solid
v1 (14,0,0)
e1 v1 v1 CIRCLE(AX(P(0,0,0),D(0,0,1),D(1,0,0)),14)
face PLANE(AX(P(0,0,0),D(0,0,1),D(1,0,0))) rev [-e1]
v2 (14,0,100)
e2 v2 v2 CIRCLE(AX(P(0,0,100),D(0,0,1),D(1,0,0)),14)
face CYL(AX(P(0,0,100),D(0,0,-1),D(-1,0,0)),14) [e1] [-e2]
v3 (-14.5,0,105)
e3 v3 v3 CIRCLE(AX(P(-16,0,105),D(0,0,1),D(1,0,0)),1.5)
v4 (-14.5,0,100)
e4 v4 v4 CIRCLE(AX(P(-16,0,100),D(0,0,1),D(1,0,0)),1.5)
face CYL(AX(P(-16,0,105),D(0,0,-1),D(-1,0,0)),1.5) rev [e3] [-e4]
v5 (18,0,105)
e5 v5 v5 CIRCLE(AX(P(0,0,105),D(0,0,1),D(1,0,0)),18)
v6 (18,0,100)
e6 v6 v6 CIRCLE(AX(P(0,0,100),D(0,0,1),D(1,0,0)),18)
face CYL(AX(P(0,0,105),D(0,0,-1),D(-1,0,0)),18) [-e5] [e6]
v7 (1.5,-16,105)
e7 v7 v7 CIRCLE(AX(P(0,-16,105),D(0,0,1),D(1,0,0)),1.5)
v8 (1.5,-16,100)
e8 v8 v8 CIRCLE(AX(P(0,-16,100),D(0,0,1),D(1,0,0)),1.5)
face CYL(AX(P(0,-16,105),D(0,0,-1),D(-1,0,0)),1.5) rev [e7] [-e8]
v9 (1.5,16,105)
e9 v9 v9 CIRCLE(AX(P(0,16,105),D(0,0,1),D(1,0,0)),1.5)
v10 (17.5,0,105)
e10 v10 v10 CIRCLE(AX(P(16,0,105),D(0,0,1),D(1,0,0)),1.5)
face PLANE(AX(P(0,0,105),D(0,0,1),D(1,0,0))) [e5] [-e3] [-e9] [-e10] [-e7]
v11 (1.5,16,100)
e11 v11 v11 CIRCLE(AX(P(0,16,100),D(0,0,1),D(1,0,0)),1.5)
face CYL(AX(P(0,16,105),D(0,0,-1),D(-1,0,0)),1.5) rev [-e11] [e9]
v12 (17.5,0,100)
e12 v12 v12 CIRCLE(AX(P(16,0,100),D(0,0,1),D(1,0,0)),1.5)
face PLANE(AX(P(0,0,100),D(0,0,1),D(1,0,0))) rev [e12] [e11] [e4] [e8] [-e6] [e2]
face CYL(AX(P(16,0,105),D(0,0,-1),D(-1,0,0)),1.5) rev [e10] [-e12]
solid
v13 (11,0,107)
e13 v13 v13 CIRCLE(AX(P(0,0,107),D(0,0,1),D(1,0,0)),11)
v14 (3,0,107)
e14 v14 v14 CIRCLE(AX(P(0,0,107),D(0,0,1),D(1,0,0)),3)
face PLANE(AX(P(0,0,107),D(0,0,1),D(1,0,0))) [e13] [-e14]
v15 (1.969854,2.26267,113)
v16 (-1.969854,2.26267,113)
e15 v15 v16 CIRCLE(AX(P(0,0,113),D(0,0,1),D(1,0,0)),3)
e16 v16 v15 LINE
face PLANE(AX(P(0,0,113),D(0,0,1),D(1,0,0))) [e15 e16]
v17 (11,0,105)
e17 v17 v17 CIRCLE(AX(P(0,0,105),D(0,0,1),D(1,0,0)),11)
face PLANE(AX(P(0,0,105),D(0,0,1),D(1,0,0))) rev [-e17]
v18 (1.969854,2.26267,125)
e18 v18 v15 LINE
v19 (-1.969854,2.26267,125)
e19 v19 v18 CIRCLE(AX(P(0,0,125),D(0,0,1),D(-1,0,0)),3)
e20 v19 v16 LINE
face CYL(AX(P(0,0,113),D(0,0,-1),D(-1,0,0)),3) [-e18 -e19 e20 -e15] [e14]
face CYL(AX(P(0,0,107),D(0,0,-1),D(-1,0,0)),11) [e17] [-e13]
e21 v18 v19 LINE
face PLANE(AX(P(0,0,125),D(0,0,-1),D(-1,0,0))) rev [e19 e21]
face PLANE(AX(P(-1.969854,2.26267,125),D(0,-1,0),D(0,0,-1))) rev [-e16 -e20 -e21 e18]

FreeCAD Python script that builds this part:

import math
import FreeCAD as App
import Part
import Sketcher
from FreeCAD import Vector
Q = App.Units.Quantity

doc = App.newDocument("Part")
body = doc.addObject("PartDesign::Body", "Body")

sketch1 = body.newObject("Sketcher::SketchObject", "Sketch")
sketch1.AttachmentSupport = (doc.getObject("XY_Plane"), [""])
sketch1.MapMode = "FlatFace"
sketch1.addGeometry(Part.Circle(Vector(0, 0, 0), Vector(0, 0, 1), 14), False)
sketch1.addConstraint(Sketcher.Constraint("Coincident", 0, 3, -1, 1))
sketch1.addConstraint(Sketcher.Constraint("Diameter", 0, Q("28 mm")))
pad1 = body.newObject("PartDesign::Pad", "Pad")
pad1.Profile = sketch1
pad1.Length = 100

sketch2 = body.newObject("Sketcher::SketchObject", "Sketch001")
sketch2.AttachmentSupport = (doc.getObject("XY_Plane"), [""])
sketch2.MapMode = "FlatFace"
sketch2.AttachmentOffset = App.Placement(Vector(0, 0, 100), App.Rotation())
sketch2.addGeometry(Part.Circle(Vector(0, 0, 0), Vector(0, 0, 1), 18), False)
sketch2.addGeometry(Part.Circle(Vector(0, -16, 0), Vector(0, 0, 1), 1.5), False)
sketch2.addGeometry(Part.Circle(Vector(-16, 0, 0), Vector(0, 0, 1), 1.5), False)
sketch2.addGeometry(Part.Circle(Vector(16, 0, 0), Vector(0, 0, 1), 1.5), False)
sketch2.addGeometry(Part.Circle(Vector(0, 16, 0), Vector(0, 0, 1), 1.5), False)
sketch2.addConstraint(Sketcher.Constraint("Coincident", 0, 3, -1, 1))
sketch2.addConstraint(Sketcher.Constraint("Equal", 1, 2))
sketch2.addConstraint(Sketcher.Constraint("Equal", 2, 3))
sketch2.addConstraint(Sketcher.Constraint("Equal", 3, 4))
sketch2.addConstraint(Sketcher.Constraint("Symmetric", 2, 3, 3, 3, -1, 1))
sketch2.addConstraint(Sketcher.Constraint("Symmetric", 1, 3, 4, 3, -1, 1))
sketch2.addConstraint(Sketcher.Constraint("PointOnObject", 1, 3, -2))
sketch2.addConstraint(Sketcher.Constraint("PointOnObject", 2, 3, -1))
sketch2.addConstraint(Sketcher.Constraint("Diameter", 0, Q("36 mm")))
sketch2.addConstraint(Sketcher.Constraint("Diameter", 1, Q("3 mm")))
sketch2.addConstraint(Sketcher.Constraint("DistanceY", 1, 3, -1, 1, Q("16 mm")))
sketch2.addConstraint(Sketcher.Constraint("DistanceX", 2, 3, -1, 1, Q("16 mm")))
pad2 = body.newObject("PartDesign::Pad", "Pad001")
pad2.Profile = sketch2
pad2.Length = 5
body2 = doc.addObject("PartDesign::Body", "Body001")

sketch3 = body2.newObject("Sketcher::SketchObject", "Sketch002")
sketch3.AttachmentSupport = (doc.getObject("XY_Plane001"), [""])
sketch3.MapMode = "FlatFace"
sketch3.AttachmentOffset = App.Placement(Vector(0, 0, 105), App.Rotation())
sketch3.addGeometry(Part.Circle(Vector(0, 0, 0), Vector(0, 0, 1), 11), False)
sketch3.addConstraint(Sketcher.Constraint("Coincident", 0, 3, -1, 1))
sketch3.addConstraint(Sketcher.Constraint("Diameter", 0, Q("22 mm")))
pad3 = body2.newObject("PartDesign::Pad", "Pad002")
pad3.Profile = sketch3
pad3.Length = 2

sketch4 = body2.newObject("Sketcher::SketchObject", "Sketch003")
sketch4.AttachmentSupport = (doc.getObject("XY_Plane001"), [""])
sketch4.MapMode = "FlatFace"
sketch4.AttachmentOffset = App.Placement(Vector(0, 0, 107), App.Rotation())
sketch4.addGeometry(Part.Circle(Vector(0, 0, 0), Vector(0, 0, 1), 3), False)
sketch4.addConstraint(Sketcher.Constraint("Coincident", 0, 3, -1, 1))
sketch4.addConstraint(Sketcher.Constraint("Diameter", 0, Q("6 mm")))
pad4 = body2.newObject("PartDesign::Pad", "Pad003")
pad4.Profile = sketch4
pad4.Length = 6

sketch5 = body2.newObject("Sketcher::SketchObject", "Sketch004")
sketch5.AttachmentSupport = (doc.getObject("XY_Plane001"), [""])
sketch5.MapMode = "FlatFace"
sketch5.AttachmentOffset = App.Placement(Vector(0, 0, 107), App.Rotation())
sketch5.addGeometry(Part.LineSegment(Vector(1.969854, 2.26267, 0), Vector(-1.969854, 2.26267, 0)), False)
sketch5.addGeometry(Part.ArcOfCircle(Part.Circle(Vector(0, 0, 0), Vector(0, 0, 1), 3), math.radians(131.042447), math.radians(180)), False)
sketch5.addGeometry(Part.ArcOfCircle(Part.Circle(Vector(0, 0, 0), Vector(0, 0, 1), 3), math.radians(180), math.radians(360)), False)
sketch5.addGeometry(Part.ArcOfCircle(Part.Circle(Vector(0, 0, 0), Vector(0, 0, 1), 3), math.radians(0), math.radians(48.957553)), False)
sketch5.addConstraint(Sketcher.Constraint("Coincident", 0, 2, 1, 1))
sketch5.addConstraint(Sketcher.Constraint("Tangent", 1, 2, 2, 1))
sketch5.addConstraint(Sketcher.Constraint("Tangent", 2, 2, 3, 1))
sketch5.addConstraint(Sketcher.Constraint("Coincident", 3, 2, 0, 1))
sketch5.addConstraint(Sketcher.Constraint("Horizontal", 0))
sketch5.addConstraint(Sketcher.Constraint("Coincident", 1, 3, -1, 1))
sketch5.addConstraint(Sketcher.Constraint("Equal", 1, 2))
sketch5.addConstraint(Sketcher.Constraint("Equal", 2, 3))
sketch5.addConstraint(Sketcher.Constraint("PointOnObject", 1, 2, -1))
sketch5.addConstraint(Sketcher.Constraint("PointOnObject", 2, 2, -1))
sketch5.addConstraint(Sketcher.Constraint("Radius", 1, Q("3 mm")))
sketch5.addConstraint(Sketcher.Constraint("DistanceX", 0, 2, 0, 1, Q("3.939708 mm")))
pad5 = body2.newObject("PartDesign::Pad", "Pad004")
pad5.Profile = sketch5
pad5.Length = 18

doc.recompute()
